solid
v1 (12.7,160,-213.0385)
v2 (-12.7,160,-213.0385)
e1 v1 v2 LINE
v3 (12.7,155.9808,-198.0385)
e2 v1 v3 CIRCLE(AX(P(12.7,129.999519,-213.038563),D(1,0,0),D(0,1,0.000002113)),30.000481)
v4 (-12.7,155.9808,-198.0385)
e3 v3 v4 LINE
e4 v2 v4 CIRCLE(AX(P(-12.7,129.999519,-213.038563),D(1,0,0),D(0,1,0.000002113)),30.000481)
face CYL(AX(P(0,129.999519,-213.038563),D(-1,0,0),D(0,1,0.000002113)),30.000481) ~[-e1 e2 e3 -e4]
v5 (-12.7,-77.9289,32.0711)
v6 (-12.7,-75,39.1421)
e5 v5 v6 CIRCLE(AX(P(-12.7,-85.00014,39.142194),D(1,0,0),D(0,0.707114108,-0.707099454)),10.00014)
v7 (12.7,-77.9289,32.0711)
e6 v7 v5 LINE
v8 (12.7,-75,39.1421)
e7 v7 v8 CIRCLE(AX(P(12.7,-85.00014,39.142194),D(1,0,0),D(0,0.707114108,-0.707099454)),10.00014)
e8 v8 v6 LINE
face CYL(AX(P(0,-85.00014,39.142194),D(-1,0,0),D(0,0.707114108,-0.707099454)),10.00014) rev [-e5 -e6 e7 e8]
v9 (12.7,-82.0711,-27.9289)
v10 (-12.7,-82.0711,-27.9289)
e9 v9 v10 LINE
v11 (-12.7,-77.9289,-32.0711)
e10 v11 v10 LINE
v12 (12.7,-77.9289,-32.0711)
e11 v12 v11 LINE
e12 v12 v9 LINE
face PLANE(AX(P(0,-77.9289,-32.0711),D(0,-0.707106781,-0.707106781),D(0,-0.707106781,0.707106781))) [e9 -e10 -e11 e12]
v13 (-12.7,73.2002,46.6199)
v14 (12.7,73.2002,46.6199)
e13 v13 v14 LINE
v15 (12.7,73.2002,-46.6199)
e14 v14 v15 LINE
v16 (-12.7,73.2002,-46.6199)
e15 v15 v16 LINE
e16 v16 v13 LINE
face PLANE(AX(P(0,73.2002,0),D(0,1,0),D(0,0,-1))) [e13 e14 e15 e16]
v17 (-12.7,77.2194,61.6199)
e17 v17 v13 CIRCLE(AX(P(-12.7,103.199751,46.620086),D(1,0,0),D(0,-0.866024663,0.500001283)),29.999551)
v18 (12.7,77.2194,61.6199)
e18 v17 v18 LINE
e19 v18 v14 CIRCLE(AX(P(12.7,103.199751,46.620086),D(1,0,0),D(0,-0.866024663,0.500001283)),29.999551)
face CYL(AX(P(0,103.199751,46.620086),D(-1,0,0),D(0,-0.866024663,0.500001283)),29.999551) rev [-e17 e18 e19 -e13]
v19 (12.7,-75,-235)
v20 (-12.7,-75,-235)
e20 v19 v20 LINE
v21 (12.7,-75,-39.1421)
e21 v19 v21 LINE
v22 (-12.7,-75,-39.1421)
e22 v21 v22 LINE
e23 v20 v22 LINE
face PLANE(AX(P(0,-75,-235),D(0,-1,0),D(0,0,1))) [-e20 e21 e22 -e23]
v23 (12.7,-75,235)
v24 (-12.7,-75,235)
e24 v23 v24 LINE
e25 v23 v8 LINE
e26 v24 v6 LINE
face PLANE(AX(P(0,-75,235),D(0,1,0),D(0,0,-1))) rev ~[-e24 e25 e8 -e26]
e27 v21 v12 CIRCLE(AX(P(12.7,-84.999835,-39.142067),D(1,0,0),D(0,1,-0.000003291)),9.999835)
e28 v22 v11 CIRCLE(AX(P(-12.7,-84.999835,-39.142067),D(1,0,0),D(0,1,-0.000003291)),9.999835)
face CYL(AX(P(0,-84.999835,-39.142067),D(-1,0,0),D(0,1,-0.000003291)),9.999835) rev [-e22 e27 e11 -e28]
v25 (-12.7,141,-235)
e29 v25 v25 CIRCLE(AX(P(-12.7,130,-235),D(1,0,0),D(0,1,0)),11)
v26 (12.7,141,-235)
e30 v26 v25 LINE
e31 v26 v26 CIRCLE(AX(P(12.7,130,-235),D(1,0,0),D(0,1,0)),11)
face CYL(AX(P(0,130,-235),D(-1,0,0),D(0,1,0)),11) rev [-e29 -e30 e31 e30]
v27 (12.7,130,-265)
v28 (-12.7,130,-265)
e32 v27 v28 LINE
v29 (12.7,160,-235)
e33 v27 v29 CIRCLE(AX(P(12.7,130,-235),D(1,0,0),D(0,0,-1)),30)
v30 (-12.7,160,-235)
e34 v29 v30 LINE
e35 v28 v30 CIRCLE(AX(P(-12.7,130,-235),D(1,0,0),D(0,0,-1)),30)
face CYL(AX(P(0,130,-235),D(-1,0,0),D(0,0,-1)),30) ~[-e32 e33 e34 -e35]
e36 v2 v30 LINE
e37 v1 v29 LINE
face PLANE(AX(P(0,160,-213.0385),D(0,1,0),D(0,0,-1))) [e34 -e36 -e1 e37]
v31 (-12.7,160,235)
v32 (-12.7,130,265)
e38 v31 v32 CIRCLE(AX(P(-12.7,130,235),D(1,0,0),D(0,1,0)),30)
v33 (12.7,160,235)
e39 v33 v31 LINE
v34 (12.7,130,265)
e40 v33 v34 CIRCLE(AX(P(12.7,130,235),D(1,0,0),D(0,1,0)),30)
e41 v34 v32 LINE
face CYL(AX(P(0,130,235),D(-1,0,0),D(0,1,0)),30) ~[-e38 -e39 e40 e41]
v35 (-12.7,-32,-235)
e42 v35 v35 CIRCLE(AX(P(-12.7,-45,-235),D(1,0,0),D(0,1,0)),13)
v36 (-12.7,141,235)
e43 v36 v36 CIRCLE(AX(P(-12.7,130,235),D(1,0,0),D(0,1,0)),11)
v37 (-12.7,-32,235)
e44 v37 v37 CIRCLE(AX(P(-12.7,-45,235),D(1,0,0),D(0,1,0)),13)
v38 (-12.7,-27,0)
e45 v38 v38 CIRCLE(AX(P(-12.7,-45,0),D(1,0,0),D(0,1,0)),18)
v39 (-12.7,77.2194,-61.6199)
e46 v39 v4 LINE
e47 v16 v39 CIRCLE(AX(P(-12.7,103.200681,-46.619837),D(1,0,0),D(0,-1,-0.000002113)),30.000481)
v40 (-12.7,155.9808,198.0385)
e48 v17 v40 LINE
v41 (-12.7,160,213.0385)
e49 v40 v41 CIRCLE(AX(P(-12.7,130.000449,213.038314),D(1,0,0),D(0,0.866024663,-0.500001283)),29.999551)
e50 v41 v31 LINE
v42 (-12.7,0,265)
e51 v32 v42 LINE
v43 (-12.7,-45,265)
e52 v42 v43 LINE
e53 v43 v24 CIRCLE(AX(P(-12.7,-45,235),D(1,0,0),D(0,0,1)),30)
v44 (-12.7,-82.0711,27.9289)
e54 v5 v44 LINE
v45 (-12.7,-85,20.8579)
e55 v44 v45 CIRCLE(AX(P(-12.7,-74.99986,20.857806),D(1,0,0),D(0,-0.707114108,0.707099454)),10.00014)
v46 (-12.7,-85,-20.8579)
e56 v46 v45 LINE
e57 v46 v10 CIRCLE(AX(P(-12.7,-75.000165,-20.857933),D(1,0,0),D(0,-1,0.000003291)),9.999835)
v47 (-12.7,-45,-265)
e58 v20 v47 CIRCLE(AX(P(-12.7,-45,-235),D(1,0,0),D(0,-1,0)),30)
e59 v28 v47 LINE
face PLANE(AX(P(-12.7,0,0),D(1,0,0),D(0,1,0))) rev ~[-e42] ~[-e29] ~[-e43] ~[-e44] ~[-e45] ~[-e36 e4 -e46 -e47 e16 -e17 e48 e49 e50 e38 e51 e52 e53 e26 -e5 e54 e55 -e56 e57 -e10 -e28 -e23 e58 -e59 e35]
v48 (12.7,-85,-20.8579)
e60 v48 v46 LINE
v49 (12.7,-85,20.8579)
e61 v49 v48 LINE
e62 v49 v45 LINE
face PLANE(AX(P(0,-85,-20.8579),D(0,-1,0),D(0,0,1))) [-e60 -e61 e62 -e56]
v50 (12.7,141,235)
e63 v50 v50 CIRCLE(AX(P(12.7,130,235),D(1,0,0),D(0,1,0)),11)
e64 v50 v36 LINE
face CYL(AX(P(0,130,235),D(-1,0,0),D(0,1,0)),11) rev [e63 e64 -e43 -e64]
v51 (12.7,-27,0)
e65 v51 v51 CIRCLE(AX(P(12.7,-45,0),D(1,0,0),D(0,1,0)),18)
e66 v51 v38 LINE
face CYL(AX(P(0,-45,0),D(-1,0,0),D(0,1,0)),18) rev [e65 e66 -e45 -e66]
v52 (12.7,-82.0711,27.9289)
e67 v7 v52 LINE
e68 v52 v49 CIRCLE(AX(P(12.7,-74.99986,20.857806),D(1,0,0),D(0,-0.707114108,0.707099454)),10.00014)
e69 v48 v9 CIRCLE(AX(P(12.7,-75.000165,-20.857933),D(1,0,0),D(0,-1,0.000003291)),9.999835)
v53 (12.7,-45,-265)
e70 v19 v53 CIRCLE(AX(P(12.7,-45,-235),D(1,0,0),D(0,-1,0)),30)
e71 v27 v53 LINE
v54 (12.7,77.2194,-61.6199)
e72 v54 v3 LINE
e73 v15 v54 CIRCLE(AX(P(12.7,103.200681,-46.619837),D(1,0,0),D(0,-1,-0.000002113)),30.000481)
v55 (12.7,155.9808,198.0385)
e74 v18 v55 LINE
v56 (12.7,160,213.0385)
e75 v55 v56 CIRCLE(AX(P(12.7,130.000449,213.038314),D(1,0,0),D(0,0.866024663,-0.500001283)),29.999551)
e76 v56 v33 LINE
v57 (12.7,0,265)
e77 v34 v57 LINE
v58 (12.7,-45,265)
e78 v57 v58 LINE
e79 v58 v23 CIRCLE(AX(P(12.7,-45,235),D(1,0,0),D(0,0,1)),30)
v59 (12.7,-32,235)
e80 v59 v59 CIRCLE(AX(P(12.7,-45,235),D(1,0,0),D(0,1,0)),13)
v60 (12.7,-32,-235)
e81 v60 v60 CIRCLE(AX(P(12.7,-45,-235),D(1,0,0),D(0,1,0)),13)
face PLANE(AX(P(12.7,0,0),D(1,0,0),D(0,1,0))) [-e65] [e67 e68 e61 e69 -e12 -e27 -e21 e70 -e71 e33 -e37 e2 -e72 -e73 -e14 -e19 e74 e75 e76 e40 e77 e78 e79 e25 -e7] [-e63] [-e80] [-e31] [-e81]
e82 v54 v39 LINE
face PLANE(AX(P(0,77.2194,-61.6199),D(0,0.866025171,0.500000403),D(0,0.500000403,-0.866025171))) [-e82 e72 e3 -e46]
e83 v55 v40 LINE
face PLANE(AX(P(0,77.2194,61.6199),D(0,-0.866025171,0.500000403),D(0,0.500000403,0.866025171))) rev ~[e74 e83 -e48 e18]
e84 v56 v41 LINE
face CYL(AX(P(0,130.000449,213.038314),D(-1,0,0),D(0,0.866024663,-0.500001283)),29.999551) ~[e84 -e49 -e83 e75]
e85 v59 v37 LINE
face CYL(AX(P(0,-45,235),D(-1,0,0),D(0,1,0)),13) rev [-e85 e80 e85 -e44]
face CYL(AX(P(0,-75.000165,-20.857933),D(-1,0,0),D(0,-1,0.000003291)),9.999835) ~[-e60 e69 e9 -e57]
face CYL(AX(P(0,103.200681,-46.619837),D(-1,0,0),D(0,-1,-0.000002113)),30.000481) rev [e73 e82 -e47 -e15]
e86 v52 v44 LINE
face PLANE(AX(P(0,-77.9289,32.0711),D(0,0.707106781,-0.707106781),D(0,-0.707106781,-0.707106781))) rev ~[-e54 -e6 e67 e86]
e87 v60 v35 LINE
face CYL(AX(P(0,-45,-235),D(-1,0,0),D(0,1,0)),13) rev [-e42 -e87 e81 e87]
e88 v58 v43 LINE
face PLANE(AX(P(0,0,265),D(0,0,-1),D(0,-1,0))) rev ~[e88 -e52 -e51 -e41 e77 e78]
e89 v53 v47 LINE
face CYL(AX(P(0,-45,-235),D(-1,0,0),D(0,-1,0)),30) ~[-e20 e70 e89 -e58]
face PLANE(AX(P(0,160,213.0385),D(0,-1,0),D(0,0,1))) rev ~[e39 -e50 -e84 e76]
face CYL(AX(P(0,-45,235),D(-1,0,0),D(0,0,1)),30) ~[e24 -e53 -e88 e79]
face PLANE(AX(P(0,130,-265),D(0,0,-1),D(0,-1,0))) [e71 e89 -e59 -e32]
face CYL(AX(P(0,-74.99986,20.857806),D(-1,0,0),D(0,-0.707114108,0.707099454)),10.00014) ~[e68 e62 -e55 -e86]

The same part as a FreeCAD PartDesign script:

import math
import FreeCAD as App
import Part
import Sketcher
from FreeCAD import Vector
Q = App.Units.Quantity

doc = App.newDocument("Part")
body = doc.addObject("PartDesign::Body", "Body")

# Sketch on YZ plane
sketch1 = body.newObject("Sketcher::SketchObject", "Sketch")
sketch1.AttachmentSupport = (doc.getObject("YZ_Plane"), [""])
sketch1.MapMode = "FlatFace"
sketch1.addGeometry([
    Part.LineSegment(Vector(73, -47, 0), Vector(73, 47, 0)),  # 0
    Part.ArcOfCircle(Part.Circle(Vector(103, 47, 0), Vector(0, 0, 1), 30), math.radians(150), math.radians(180)),  # 1
    Part.LineSegment(Vector(77, 62, 0), Vector(156, 198, 0)),  # 2
    Part.ArcOfCircle(Part.Circle(Vector(130, 213, 0), Vector(0, 0, 1), 30), math.radians(-30), math.radians(0)),  # 3
    Part.LineSegment(Vector(160, 213, 0), Vector(160, 235, 0)),  # 4
    Part.ArcOfCircle(Part.Circle(Vector(130, 235, 0), Vector(0, 0, 1), 30), math.radians(0), math.radians(90)),  # 5
    Part.LineSegment(Vector(130, 265, 0), Vector(0, 265, 0)),  # 6
    Part.LineSegment(Vector(0, 265, 0), Vector(-45, 265, 0)),  # 7
    Part.ArcOfCircle(Part.Circle(Vector(-45, 235, 0), Vector(0, 0, 1), 30), math.radians(90), math.radians(180)),  # 8
    Part.LineSegment(Vector(-75, 235, 0), Vector(-75, 39, 0)),  # 9
    Part.ArcOfCircle(Part.Circle(Vector(-85, 39, 0), Vector(0, 0, 1), 10), math.radians(-45), math.radians(0)),  # 10
    Part.LineSegment(Vector(-78, 32, 0), Vector(-82, 28, 0)),  # 11
    Part.ArcOfCircle(Part.Circle(Vector(-75, 21, 0), Vector(0, 0, 1), 10), math.radians(135), math.radians(180)),  # 12
    Part.LineSegment(Vector(-85, 21, 0), Vector(-85, -21, 0)),  # 13
    Part.ArcOfCircle(Part.Circle(Vector(-75, -21, 0), Vector(0, 0, 1), 10), math.radians(180), math.radians(225)),  # 14
    Part.LineSegment(Vector(-82, -28, 0), Vector(-78, -32, 0)),  # 15
    Part.ArcOfCircle(Part.Circle(Vector(-85, -39, 0), Vector(0, 0, 1), 10), math.radians(0), math.radians(45)),  # 16
    Part.LineSegment(Vector(-75, -39, 0), Vector(-75, -235, 0)),  # 17
    Part.ArcOfCircle(Part.Circle(Vector(-45, -235, 0), Vector(0, 0, 1), 30), math.radians(180), math.radians(270)),  # 18
    Part.LineSegment(Vector(-45, -265, 0), Vector(130, -265, 0)),  # 19
    Part.ArcOfCircle(Part.Circle(Vector(130, -235, 0), Vector(0, 0, 1), 30), math.radians(-90), math.radians(0)),  # 20
    Part.LineSegment(Vector(160, -235, 0), Vector(160, -213, 0)),  # 21
    Part.ArcOfCircle(Part.Circle(Vector(130, -213, 0), Vector(0, 0, 1), 30), math.radians(0), math.radians(30)),  # 22
    Part.LineSegment(Vector(156, -198, 0), Vector(77, -62, 0)),  # 23
    Part.ArcOfCircle(Part.Circle(Vector(103, -47, 0), Vector(0, 0, 1), 30), math.radians(180), math.radians(210)),  # 24
    Part.Circle(Vector(-45, -235, 0), Vector(0, 0, 1), 13),  # 25
    Part.Circle(Vector(130, -235, 0), Vector(0, 0, 1), 11),  # 26
    Part.Circle(Vector(-45, 0, 0), Vector(0, 0, 1), 18),  # 27
    Part.Circle(Vector(-45, 235, 0), Vector(0, 0, 1), 13),  # 28
    Part.Circle(Vector(130, 235, 0), Vector(0, 0, 1), 11),  # 29
], False)
sketch1.addConstraint([
    Sketcher.Constraint("Tangent", 0, 2, 1, 2),
    Sketcher.Constraint("Tangent", 1, 1, 2, 1),
    Sketcher.Constraint("Tangent", 2, 2, 3, 1),
    Sketcher.Constraint("Tangent", 3, 2, 4, 1),
    Sketcher.Constraint("Tangent", 4, 2, 5, 1),
    Sketcher.Constraint("Tangent", 5, 2, 6, 1),
    Sketcher.Constraint("Coincident", 6, 2, 7, 1),
    Sketcher.Constraint("Tangent", 7, 2, 8, 1),
    Sketcher.Constraint("Tangent", 8, 2, 9, 1),
    Sketcher.Constraint("Tangent", 9, 2, 10, 2),
    Sketcher.Constraint("Tangent", 10, 1, 11, 1),
    Sketcher.Constraint("Tangent", 11, 2, 12, 1),
    Sketcher.Constraint("Tangent", 12, 2, 13, 1),
    Sketcher.Constraint("Tangent", 13, 2, 14, 1),
    Sketcher.Constraint("Tangent", 14, 2, 15, 1),
    Sketcher.Constraint("Tangent", 15, 2, 16, 2),
    Sketcher.Constraint("Tangent", 16, 1, 17, 1),
    Sketcher.Constraint("Tangent", 17, 2, 18, 1),
    Sketcher.Constraint("Tangent", 18, 2, 19, 1),
    Sketcher.Constraint("Tangent", 19, 2, 20, 1),
    Sketcher.Constraint("Tangent", 20, 2, 21, 1),
    Sketcher.Constraint("Tangent", 21, 2, 22, 1),
    Sketcher.Constraint("Tangent", 22, 2, 23, 1),
    Sketcher.Constraint("Tangent", 23, 2, 24, 2),
    Sketcher.Constraint("Tangent", 24, 1, 0, 1),
    Sketcher.Constraint("Vertical", 0),
    Sketcher.Constraint("Vertical", 4),
    Sketcher.Constraint("Horizontal", 6),
    Sketcher.Constraint("Horizontal", 7),
    Sketcher.Constraint("Vertical", 9),
    Sketcher.Constraint("Vertical", 13),
    Sketcher.Constraint("Vertical", 17),
    Sketcher.Constraint("Horizontal", 19),
    Sketcher.Constraint("Vertical", 21),
    Sketcher.Constraint("Coincident", 25, 3, 18, 3),
    Sketcher.Constraint("Coincident", 26, 3, 20, 3),
    Sketcher.Constraint("Coincident", 28, 3, 8, 3),
    Sketcher.Constraint("Coincident", 29, 3, 5, 3),
    Sketcher.Constraint("Equal", 1, 3),
    Sketcher.Constraint("Equal", 3, 5),
    Sketcher.Constraint("Equal", 5, 8),
    Sketcher.Constraint("Equal", 10, 12),
    Sketcher.Constraint("Equal", 12, 14),
    Sketcher.Constraint("Equal", 14, 16),
    Sketcher.Constraint("Equal", 8, 18),
    Sketcher.Constraint("Equal", 18, 20),
    Sketcher.Constraint("Equal", 20, 22),
    Sketcher.Constraint("Equal", 22, 24),
    Sketcher.Constraint("Equal", 25, 28),
    Sketcher.Constraint("Equal", 26, 29),
    Sketcher.Constraint("Symmetric", 10, 3, 16, 3, -1),
    Sketcher.Constraint("Symmetric", 5, 3, 20, 3, -1),
    Sketcher.Constraint("Symmetric", 2, 2, 22, 2, -1),
    Sketcher.Constraint("PointOnObject", 27, 3, -1),
    Sketcher.Constraint("PointOnObject", 6, 2, -2),
    Sketcher.Constraint("Perpendicular", 11, 15),
    Sketcher.Constraint("Vertical", 25, 3, 27, 3),
    Sketcher.Constraint("Vertical", 14, 3, 8, 2),
    Sketcher.Constraint("Vertical", 11, 2, 14, 2),
    Sketcher.Constraint("Diameter", 25, 26.0),
    Sketcher.Constraint("Diameter", 26, 22.0),
    Sketcher.Constraint("Diameter", 27, 36.0),
    Sketcher.Constraint("Radius", 1, 30.0),
    Sketcher.Constraint("Radius", 10, 10.0),
    Sketcher.Constraint("DistanceX", 7, 2, 7, 1, 45.0),
    Sketcher.Constraint("DistanceX", 6, 2, 6, 1, 130.0),
    Sketcher.Constraint("Angle", 2, Q("60 deg")),
    Sketcher.Constraint("DistanceY", -1, 1, 5, 3, 235.0),
    Sketcher.Constraint("DistanceY", 14, 3, 10, 3, 60.0),
    Sketcher.Constraint("DistanceY", -1, 1, 1, 3, 46.62),
    Sketcher.Constraint("DistanceY", 4, 1, 4, 2, 21.9615),
])
pad1 = body.newObject("PartDesign::Pad", "Pad")
pad1.Profile = sketch1
pad1.Length = 25.4
pad1.Midplane = True

doc.recompute()
